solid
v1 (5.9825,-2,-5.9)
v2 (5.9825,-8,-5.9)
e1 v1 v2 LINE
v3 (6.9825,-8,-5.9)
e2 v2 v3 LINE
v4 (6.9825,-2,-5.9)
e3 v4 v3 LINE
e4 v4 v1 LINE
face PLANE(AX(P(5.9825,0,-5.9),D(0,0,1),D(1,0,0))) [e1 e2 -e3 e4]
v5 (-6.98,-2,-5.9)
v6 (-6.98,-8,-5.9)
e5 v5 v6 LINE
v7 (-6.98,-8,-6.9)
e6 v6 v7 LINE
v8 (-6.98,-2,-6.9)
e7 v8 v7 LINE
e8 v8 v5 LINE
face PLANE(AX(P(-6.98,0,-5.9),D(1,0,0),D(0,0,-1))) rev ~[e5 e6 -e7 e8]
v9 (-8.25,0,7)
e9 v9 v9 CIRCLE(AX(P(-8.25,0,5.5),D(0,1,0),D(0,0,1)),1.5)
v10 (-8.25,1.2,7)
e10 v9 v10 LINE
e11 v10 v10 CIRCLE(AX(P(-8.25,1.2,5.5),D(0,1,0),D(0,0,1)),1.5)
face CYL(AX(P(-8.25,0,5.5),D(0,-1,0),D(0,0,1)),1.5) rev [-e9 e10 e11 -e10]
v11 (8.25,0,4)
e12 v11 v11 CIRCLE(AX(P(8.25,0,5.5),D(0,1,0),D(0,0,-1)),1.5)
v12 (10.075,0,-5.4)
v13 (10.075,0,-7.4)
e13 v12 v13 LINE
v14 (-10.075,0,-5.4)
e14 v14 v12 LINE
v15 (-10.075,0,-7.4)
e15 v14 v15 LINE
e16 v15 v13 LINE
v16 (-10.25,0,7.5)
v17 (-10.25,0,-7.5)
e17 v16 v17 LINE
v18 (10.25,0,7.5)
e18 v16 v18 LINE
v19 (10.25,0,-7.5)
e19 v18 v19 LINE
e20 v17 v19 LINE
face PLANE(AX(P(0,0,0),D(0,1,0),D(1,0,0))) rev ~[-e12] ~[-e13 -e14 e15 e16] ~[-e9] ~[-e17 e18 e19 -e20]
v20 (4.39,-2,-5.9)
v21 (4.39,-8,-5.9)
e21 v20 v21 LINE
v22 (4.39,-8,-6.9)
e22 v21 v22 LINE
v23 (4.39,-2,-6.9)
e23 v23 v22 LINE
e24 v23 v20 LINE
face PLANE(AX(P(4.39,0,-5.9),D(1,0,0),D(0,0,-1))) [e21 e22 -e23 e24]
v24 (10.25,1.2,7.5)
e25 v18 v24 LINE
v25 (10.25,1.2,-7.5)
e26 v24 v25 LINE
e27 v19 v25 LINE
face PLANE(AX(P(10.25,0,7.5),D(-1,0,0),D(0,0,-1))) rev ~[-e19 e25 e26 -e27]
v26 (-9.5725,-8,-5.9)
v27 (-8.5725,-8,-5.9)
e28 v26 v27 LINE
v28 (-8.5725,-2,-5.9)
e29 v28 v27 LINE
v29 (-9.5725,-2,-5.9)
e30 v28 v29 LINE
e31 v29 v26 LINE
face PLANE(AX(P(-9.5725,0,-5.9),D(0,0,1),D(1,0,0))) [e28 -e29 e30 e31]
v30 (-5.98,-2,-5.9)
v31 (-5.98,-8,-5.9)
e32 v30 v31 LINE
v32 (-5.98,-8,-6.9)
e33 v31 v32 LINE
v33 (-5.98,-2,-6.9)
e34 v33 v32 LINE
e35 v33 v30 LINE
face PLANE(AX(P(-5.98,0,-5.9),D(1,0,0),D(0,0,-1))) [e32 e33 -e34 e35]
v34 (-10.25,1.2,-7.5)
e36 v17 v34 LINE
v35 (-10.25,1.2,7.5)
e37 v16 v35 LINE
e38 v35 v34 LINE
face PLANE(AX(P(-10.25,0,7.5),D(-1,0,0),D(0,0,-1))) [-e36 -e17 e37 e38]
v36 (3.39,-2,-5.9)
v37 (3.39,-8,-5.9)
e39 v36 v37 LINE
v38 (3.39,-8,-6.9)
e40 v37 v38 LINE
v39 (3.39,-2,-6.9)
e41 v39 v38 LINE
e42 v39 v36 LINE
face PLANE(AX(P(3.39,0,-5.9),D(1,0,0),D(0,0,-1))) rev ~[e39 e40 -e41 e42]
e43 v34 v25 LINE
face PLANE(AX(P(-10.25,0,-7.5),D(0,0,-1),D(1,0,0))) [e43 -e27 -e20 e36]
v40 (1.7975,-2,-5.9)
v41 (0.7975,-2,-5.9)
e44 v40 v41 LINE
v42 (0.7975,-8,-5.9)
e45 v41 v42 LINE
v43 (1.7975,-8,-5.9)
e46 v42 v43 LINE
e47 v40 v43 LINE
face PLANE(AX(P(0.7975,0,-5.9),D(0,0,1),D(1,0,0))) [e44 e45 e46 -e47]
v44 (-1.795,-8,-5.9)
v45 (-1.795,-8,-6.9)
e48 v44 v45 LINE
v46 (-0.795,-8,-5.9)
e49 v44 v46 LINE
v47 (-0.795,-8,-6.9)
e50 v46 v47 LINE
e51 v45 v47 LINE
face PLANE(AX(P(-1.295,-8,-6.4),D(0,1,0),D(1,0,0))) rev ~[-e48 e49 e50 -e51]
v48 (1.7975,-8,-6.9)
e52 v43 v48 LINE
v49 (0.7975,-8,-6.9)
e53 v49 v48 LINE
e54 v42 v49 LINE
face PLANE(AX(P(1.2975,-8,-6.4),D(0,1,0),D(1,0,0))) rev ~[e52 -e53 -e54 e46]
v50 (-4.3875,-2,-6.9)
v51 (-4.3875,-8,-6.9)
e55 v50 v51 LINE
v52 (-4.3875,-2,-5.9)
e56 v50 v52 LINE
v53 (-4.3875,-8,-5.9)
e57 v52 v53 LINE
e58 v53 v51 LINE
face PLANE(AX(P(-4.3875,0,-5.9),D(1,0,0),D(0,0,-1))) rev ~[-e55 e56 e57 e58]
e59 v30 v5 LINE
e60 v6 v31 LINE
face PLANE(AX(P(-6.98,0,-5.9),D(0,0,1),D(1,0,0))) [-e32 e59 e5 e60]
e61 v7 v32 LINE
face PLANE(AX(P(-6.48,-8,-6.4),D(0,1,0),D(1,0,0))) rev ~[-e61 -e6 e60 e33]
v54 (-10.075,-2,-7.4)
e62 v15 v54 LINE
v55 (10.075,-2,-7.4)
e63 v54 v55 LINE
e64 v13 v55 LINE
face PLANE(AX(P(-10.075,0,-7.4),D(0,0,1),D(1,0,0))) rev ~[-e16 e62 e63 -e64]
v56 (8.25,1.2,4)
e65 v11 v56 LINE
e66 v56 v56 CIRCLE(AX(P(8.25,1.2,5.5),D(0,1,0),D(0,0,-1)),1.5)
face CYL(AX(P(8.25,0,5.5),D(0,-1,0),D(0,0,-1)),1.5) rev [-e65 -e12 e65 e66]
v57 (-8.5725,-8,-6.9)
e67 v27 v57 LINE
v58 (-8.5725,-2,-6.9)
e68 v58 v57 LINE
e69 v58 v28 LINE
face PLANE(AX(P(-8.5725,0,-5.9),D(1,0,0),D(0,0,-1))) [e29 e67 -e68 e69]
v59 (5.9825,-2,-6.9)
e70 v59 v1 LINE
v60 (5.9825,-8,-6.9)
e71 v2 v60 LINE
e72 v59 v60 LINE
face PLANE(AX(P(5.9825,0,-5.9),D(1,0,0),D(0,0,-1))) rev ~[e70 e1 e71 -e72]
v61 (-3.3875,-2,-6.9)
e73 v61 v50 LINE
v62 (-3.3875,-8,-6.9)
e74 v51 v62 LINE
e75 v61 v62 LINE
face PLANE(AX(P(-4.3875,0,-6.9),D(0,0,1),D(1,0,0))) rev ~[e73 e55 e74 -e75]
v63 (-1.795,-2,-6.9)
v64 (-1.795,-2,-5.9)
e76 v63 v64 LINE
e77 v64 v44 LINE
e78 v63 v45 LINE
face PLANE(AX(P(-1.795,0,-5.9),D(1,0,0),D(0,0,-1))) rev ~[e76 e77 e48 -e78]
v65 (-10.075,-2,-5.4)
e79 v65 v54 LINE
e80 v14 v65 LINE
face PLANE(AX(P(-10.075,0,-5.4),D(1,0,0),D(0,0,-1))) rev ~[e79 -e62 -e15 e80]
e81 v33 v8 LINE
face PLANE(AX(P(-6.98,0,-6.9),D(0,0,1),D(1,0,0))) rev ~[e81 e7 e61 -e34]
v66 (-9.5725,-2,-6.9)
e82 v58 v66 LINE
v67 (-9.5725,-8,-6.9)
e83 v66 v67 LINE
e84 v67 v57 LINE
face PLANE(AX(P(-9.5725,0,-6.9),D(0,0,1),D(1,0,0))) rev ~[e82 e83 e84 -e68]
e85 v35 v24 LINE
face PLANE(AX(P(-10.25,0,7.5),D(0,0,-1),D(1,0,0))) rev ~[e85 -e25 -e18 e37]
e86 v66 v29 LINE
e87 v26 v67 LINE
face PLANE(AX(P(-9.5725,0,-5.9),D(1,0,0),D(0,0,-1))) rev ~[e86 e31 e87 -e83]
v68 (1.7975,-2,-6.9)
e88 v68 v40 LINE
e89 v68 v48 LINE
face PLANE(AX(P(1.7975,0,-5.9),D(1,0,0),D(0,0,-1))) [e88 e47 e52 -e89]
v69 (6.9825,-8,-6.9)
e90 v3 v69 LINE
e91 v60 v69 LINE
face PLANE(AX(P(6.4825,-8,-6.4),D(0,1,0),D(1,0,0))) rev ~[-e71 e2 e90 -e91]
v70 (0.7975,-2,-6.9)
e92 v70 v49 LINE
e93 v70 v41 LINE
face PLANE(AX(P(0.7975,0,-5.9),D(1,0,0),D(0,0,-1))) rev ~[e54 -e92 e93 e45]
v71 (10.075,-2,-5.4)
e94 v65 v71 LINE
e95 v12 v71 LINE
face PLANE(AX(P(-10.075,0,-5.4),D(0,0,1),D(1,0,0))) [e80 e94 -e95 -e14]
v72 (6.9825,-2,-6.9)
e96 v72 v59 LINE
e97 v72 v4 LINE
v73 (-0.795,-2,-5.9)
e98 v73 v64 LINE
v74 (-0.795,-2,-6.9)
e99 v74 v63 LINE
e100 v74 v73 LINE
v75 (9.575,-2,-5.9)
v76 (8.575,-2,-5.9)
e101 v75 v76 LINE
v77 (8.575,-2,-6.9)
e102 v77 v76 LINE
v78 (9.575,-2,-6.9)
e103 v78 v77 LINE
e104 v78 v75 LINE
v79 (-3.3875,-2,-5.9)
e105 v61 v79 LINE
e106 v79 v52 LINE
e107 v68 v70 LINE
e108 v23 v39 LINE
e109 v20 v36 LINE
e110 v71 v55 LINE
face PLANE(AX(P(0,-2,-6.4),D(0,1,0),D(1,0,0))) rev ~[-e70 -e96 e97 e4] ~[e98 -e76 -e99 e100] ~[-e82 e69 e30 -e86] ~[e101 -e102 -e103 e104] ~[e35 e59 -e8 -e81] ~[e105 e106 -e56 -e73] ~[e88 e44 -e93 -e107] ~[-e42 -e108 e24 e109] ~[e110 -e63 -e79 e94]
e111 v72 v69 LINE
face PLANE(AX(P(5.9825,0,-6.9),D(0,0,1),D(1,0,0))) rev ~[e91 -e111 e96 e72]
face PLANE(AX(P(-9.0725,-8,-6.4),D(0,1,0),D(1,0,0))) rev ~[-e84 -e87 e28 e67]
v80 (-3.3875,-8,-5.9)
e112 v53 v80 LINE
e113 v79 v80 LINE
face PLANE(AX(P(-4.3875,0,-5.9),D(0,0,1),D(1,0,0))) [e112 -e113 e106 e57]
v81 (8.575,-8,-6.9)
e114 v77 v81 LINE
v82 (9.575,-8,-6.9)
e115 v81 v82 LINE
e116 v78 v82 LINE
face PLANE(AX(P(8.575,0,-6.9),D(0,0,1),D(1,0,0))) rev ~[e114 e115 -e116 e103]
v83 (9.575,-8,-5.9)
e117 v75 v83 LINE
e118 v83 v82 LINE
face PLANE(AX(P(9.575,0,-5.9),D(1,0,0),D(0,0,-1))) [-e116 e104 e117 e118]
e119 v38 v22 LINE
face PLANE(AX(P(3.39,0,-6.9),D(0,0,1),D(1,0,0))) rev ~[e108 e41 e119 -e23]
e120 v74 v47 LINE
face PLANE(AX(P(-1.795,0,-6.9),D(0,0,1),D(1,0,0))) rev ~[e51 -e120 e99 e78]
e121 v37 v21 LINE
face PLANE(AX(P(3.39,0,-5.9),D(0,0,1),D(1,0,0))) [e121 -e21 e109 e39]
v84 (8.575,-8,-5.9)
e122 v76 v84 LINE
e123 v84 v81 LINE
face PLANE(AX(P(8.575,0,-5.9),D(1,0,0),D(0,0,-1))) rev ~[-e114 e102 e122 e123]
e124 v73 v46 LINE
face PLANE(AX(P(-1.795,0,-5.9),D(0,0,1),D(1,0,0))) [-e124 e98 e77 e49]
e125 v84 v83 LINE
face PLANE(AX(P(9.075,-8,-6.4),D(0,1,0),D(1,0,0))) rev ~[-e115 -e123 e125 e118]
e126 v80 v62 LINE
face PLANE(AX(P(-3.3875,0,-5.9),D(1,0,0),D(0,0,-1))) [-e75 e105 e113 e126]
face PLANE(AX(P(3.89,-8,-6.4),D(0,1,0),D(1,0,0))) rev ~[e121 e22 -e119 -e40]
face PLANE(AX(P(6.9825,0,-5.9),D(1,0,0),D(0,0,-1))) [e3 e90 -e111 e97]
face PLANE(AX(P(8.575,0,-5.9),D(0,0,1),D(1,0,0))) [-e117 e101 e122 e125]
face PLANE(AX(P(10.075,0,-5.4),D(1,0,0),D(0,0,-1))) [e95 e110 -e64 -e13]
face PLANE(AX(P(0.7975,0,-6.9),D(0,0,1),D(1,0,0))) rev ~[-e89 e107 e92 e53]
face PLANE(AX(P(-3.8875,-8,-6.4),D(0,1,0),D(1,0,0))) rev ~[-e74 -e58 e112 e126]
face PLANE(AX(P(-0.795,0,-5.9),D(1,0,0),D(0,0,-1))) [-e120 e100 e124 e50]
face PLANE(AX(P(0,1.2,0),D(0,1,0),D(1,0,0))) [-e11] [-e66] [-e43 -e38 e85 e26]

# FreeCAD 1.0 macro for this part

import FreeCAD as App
import Part
import Sketcher
from FreeCAD import Vector


def add_polygon(sketch, points):
    """Adds a closed chain of lines whose ends are joined by coincident constraints."""
    first, n = sketch.GeometryCount, len(points)
    for a, b in zip(points, points[1:] + points[:1]):
        sketch.addGeometry(Part.LineSegment(App.Vector(*a, 0), App.Vector(*b, 0)), False)
    for i in range(n):
        sketch.addConstraint(Sketcher.Constraint("Coincident", first + i, 2, first + (i + 1) % n, 1))

doc = App.newDocument("Part")
body = doc.addObject("PartDesign::Body", "Body")

sketch1 = body.newObject("Sketcher::SketchObject", "Sketch")
sketch1.AttachmentSupport = (doc.getObject("XZ_Plane"), [""])
sketch1.MapMode = "FlatFace"
add_polygon(sketch1, [(-10.2, -7.5), (-10.2, 7.5), (10.2, 7.5), (10.2, -7.5)])
sketch1.addGeometry(Part.Circle(Vector(-8.2, 5.5, 0), Vector(0, 0, 1), 1.5), False)
sketch1.addGeometry(Part.Circle(Vector(8.2, 5.5, 0), Vector(0, 0, 1), 1.5), False)
sketch1.addConstraint(Sketcher.Constraint("Vertical", 0))
sketch1.addConstraint(Sketcher.Constraint("Horizontal", 1))
sketch1.addConstraint(Sketcher.Constraint("Vertical", 2))
sketch1.addConstraint(Sketcher.Constraint("Horizontal", 3))
sketch1.addConstraint(Sketcher.Constraint("Equal", 4, 5))
sketch1.addConstraint(Sketcher.Constraint("Symmetric", 0, 2, 2, 2, -1, 1))
sketch1.addConstraint(Sketcher.Constraint("Symmetric", 4, 3, 5, 3, -2))
sketch1.addConstraint(Sketcher.Constraint("Diameter", 4, 3.0))
sketch1.addConstraint(Sketcher.Constraint("DistanceY", 0, 1, 0, 2, 15.0))
sketch1.addConstraint(Sketcher.Constraint("DistanceX", 1, 1, 1, 2, 20.5))
sketch1.addConstraint(Sketcher.Constraint("DistanceX", 0, 2, 4, 3, 2.0))
sketch1.addConstraint(Sketcher.Constraint("DistanceY", 4, 3, 0, 2, 2.0))
pad1 = body.newObject("PartDesign::Pad", "Pad")
pad1.Profile = sketch1
pad1.Length = 1.2
pad1.Reversed = True

sketch2 = body.newObject("Sketcher::SketchObject", "Sketch001")
sketch2.AttachmentSupport = (doc.getObject("XZ_Plane"), [""])
sketch2.MapMode = "FlatFace"
add_polygon(sketch2, [(8.6, -6.9), (8.6, -5.9), (9.6, -5.9), (9.6, -6.9)])
add_polygon(sketch2, [(6, -6.9), (6, -5.9), (7, -5.9), (7, -6.9)])
add_polygon(sketch2, [(3.4, -6.9), (3.4, -5.9), (4.4, -5.9), (4.4, -6.9)])
add_polygon(sketch2, [(0.8, -6.9), (0.8, -5.9), (1.8, -5.9), (1.8, -6.9)])
add_polygon(sketch2, [(-1.8, -6.9), (-1.8, -5.9), (-0.8, -5.9), (-0.8, -6.9)])
add_polygon(sketch2, [(-4.4, -6.9), (-4.4, -5.9), (-3.4, -5.9), (-3.4, -6.9)])
add_polygon(sketch2, [(-7, -6.9), (-7, -5.9), (-6, -5.9), (-6, -6.9)])
add_polygon(sketch2, [(-9.6, -6.9), (-9.6, -5.9), (-8.6, -5.9), (-8.6, -6.9)])
sketch2.addConstraint(Sketcher.Constraint("Vertical", 0))
sketch2.addConstraint(Sketcher.Constraint("Horizontal", 1))
sketch2.addConstraint(Sketcher.Constraint("Vertical", 2))
sketch2.addConstraint(Sketcher.Constraint("Horizontal", 3))
sketch2.addConstraint(Sketcher.Constraint("Vertical", 4))
sketch2.addConstraint(Sketcher.Constraint("Horizontal", 5))
sketch2.addConstraint(Sketcher.Constraint("Vertical", 6))
sketch2.addConstraint(Sketcher.Constraint("Horizontal", 7))
sketch2.addConstraint(Sketcher.Constraint("Vertical", 8))
sketch2.addConstraint(Sketcher.Constraint("Horizontal", 9))
sketch2.addConstraint(Sketcher.Constraint("Vertical", 10))
sketch2.addConstraint(Sketcher.Constraint("Horizontal", 11))
sketch2.addConstraint(Sketcher.Constraint("Vertical", 12))
sketch2.addConstraint(Sketcher.Constraint("Horizontal", 13))
sketch2.addConstraint(Sketcher.Constraint("Vertical", 14))
sketch2.addConstraint(Sketcher.Constraint("Horizontal", 15))
sketch2.addConstraint(Sketcher.Constraint("Vertical", 16))
sketch2.addConstraint(Sketcher.Constraint("Horizontal", 17))
sketch2.addConstraint(Sketcher.Constraint("Vertical", 18))
sketch2.addConstraint(Sketcher.Constraint("Horizontal", 19))
sketch2.addConstraint(Sketcher.Constraint("Vertical", 20))
sketch2.addConstraint(Sketcher.Constraint("Horizontal", 21))
sketch2.addConstraint(Sketcher.Constraint("Vertical", 22))
sketch2.addConstraint(Sketcher.Constraint("Horizontal", 23))
sketch2.addConstraint(Sketcher.Constraint("Vertical", 24))
sketch2.addConstraint(Sketcher.Constraint("Horizontal", 25))
sketch2.addConstraint(Sketcher.Constraint("Vertical", 26))
sketch2.addConstraint(Sketcher.Constraint("Horizontal", 27))
sketch2.addConstraint(Sketcher.Constraint("Vertical", 28))
sketch2.addConstraint(Sketcher.Constraint("Horizontal", 29))
sketch2.addConstraint(Sketcher.Constraint("Vertical", 30))
sketch2.addConstraint(Sketcher.Constraint("Horizontal", 31))
sketch2.addConstraint(Sketcher.Constraint("Horizontal", 1, 2, 4, 2))
sketch2.addConstraint(Sketcher.Constraint("Horizontal", 3, 2, 6, 2))
sketch2.addConstraint(Sketcher.Constraint("Horizontal", 5, 2, 8, 2))
sketch2.addConstraint(Sketcher.Constraint("Horizontal", 7, 2, 10, 2))
sketch2.addConstraint(Sketcher.Constraint("Horizontal", 9, 2, 12, 2))
sketch2.addConstraint(Sketcher.Constraint("Horizontal", 11, 2, 14, 2))
sketch2.addConstraint(Sketcher.Constraint("Horizontal", 13, 2, 16, 2))
sketch2.addConstraint(Sketcher.Constraint("Horizontal", 15, 2, 18, 2))
sketch2.addConstraint(Sketcher.Constraint("Horizontal", 17, 2, 20, 2))
sketch2.addConstraint(Sketcher.Constraint("Horizontal", 19, 2, 22, 2))
sketch2.addConstraint(Sketcher.Constraint("Horizontal", 21, 2, 24, 2))
sketch2.addConstraint(Sketcher.Constraint("Horizontal", 23, 2, 26, 2))
sketch2.addConstraint(Sketcher.Constraint("Horizontal", 25, 2, 28, 2))
sketch2.addConstraint(Sketcher.Constraint("Horizontal", 27, 2, 30, 2))
sketch2.addConstraint(Sketcher.Constraint("Equal", 3, 5))
sketch2.addConstraint(Sketcher.Constraint("Equal", 7, 9))
sketch2.addConstraint(Sketcher.Constraint("Equal", 11, 13))
sketch2.addConstraint(Sketcher.Constraint("Equal", 15, 17))
sketch2.addConstraint(Sketcher.Constraint("Equal", 19, 21))
sketch2.addConstraint(Sketcher.Constraint("Equal", 23, 25))
sketch2.addConstraint(Sketcher.Constraint("Equal", 27, 29))
sketch2.addConstraint(Sketcher.Constraint("Equal", 31, 0))
sketch2.addConstraint(Sketcher.Constraint("DistanceX", 1, 1, 1, 2, 1.0))
sketch2.addConstraint(Sketcher.Constraint("DistanceY", 0, 2, -1, 1, 5.9))
sketch2.addConstraint(Sketcher.Constraint("DistanceX", -1, 1, 8, 2, 3.39))
sketch2.addConstraint(Sketcher.Constraint("DistanceX", 24, 2, -1, 1, 6.98))
sketch2.addConstraint(Sketcher.Constraint("DistanceX", -1, 1, 0, 2, 8.575))
sketch2.addConstraint(Sketcher.Constraint("DistanceX", 16, 2, -1, 1, 1.795))
sketch2.addConstraint(Sketcher.Constraint("DistanceX", 12, 2, 4, 2, 5.185))
sketch2.addConstraint(Sketcher.Constraint("DistanceX", 20, 2, 12, 2, 5.185))
sketch2.addConstraint(Sketcher.Constraint("DistanceX", 28, 2, 20, 2, 5.185))
sketch2.addConstraint(Sketcher.Constraint("DistanceX", -1, 1, 4, 2, 5.9825))
pad2 = body.newObject("PartDesign::Pad", "Pad001")
pad2.Profile = sketch2
pad2.Length = 8

sketch3 = body.newObject("Sketcher::SketchObject", "Sketch002")
sketch3.AttachmentSupport = (doc.getObject("XZ_Plane"), [""])
sketch3.MapMode = "FlatFace"
add_polygon(sketch3, [(-10.1, -7.4), (-10.1, -5.4), (10.1, -5.4), (10.1, -7.4)])
sketch3.addConstraint(Sketcher.Constraint("Vertical", 0))
sketch3.addConstraint(Sketcher.Constraint("Horizontal", 1))
sketch3.addConstraint(Sketcher.Constraint("Vertical", 2))
sketch3.addConstraint(Sketcher.Constraint("Horizontal", 3))
sketch3.addConstraint(Sketcher.Constraint("DistanceY", 0, 1, 0, 2, 2.0))
sketch3.addConstraint(Sketcher.Constraint("DistanceX", 1, 1, 1, 2, 20.15))
sketch3.addConstraint(Sketcher.Constraint("DistanceY", 0, 2, -1, 1, 5.4))
sketch3.addConstraint(Sketcher.Constraint("DistanceX", 0, 2, -1, 1, 10.075))
pad3 = body.newObject("PartDesign::Pad", "Pad002")
pad3.Profile = sketch3
pad3.Length = 2

doc.recompute()
